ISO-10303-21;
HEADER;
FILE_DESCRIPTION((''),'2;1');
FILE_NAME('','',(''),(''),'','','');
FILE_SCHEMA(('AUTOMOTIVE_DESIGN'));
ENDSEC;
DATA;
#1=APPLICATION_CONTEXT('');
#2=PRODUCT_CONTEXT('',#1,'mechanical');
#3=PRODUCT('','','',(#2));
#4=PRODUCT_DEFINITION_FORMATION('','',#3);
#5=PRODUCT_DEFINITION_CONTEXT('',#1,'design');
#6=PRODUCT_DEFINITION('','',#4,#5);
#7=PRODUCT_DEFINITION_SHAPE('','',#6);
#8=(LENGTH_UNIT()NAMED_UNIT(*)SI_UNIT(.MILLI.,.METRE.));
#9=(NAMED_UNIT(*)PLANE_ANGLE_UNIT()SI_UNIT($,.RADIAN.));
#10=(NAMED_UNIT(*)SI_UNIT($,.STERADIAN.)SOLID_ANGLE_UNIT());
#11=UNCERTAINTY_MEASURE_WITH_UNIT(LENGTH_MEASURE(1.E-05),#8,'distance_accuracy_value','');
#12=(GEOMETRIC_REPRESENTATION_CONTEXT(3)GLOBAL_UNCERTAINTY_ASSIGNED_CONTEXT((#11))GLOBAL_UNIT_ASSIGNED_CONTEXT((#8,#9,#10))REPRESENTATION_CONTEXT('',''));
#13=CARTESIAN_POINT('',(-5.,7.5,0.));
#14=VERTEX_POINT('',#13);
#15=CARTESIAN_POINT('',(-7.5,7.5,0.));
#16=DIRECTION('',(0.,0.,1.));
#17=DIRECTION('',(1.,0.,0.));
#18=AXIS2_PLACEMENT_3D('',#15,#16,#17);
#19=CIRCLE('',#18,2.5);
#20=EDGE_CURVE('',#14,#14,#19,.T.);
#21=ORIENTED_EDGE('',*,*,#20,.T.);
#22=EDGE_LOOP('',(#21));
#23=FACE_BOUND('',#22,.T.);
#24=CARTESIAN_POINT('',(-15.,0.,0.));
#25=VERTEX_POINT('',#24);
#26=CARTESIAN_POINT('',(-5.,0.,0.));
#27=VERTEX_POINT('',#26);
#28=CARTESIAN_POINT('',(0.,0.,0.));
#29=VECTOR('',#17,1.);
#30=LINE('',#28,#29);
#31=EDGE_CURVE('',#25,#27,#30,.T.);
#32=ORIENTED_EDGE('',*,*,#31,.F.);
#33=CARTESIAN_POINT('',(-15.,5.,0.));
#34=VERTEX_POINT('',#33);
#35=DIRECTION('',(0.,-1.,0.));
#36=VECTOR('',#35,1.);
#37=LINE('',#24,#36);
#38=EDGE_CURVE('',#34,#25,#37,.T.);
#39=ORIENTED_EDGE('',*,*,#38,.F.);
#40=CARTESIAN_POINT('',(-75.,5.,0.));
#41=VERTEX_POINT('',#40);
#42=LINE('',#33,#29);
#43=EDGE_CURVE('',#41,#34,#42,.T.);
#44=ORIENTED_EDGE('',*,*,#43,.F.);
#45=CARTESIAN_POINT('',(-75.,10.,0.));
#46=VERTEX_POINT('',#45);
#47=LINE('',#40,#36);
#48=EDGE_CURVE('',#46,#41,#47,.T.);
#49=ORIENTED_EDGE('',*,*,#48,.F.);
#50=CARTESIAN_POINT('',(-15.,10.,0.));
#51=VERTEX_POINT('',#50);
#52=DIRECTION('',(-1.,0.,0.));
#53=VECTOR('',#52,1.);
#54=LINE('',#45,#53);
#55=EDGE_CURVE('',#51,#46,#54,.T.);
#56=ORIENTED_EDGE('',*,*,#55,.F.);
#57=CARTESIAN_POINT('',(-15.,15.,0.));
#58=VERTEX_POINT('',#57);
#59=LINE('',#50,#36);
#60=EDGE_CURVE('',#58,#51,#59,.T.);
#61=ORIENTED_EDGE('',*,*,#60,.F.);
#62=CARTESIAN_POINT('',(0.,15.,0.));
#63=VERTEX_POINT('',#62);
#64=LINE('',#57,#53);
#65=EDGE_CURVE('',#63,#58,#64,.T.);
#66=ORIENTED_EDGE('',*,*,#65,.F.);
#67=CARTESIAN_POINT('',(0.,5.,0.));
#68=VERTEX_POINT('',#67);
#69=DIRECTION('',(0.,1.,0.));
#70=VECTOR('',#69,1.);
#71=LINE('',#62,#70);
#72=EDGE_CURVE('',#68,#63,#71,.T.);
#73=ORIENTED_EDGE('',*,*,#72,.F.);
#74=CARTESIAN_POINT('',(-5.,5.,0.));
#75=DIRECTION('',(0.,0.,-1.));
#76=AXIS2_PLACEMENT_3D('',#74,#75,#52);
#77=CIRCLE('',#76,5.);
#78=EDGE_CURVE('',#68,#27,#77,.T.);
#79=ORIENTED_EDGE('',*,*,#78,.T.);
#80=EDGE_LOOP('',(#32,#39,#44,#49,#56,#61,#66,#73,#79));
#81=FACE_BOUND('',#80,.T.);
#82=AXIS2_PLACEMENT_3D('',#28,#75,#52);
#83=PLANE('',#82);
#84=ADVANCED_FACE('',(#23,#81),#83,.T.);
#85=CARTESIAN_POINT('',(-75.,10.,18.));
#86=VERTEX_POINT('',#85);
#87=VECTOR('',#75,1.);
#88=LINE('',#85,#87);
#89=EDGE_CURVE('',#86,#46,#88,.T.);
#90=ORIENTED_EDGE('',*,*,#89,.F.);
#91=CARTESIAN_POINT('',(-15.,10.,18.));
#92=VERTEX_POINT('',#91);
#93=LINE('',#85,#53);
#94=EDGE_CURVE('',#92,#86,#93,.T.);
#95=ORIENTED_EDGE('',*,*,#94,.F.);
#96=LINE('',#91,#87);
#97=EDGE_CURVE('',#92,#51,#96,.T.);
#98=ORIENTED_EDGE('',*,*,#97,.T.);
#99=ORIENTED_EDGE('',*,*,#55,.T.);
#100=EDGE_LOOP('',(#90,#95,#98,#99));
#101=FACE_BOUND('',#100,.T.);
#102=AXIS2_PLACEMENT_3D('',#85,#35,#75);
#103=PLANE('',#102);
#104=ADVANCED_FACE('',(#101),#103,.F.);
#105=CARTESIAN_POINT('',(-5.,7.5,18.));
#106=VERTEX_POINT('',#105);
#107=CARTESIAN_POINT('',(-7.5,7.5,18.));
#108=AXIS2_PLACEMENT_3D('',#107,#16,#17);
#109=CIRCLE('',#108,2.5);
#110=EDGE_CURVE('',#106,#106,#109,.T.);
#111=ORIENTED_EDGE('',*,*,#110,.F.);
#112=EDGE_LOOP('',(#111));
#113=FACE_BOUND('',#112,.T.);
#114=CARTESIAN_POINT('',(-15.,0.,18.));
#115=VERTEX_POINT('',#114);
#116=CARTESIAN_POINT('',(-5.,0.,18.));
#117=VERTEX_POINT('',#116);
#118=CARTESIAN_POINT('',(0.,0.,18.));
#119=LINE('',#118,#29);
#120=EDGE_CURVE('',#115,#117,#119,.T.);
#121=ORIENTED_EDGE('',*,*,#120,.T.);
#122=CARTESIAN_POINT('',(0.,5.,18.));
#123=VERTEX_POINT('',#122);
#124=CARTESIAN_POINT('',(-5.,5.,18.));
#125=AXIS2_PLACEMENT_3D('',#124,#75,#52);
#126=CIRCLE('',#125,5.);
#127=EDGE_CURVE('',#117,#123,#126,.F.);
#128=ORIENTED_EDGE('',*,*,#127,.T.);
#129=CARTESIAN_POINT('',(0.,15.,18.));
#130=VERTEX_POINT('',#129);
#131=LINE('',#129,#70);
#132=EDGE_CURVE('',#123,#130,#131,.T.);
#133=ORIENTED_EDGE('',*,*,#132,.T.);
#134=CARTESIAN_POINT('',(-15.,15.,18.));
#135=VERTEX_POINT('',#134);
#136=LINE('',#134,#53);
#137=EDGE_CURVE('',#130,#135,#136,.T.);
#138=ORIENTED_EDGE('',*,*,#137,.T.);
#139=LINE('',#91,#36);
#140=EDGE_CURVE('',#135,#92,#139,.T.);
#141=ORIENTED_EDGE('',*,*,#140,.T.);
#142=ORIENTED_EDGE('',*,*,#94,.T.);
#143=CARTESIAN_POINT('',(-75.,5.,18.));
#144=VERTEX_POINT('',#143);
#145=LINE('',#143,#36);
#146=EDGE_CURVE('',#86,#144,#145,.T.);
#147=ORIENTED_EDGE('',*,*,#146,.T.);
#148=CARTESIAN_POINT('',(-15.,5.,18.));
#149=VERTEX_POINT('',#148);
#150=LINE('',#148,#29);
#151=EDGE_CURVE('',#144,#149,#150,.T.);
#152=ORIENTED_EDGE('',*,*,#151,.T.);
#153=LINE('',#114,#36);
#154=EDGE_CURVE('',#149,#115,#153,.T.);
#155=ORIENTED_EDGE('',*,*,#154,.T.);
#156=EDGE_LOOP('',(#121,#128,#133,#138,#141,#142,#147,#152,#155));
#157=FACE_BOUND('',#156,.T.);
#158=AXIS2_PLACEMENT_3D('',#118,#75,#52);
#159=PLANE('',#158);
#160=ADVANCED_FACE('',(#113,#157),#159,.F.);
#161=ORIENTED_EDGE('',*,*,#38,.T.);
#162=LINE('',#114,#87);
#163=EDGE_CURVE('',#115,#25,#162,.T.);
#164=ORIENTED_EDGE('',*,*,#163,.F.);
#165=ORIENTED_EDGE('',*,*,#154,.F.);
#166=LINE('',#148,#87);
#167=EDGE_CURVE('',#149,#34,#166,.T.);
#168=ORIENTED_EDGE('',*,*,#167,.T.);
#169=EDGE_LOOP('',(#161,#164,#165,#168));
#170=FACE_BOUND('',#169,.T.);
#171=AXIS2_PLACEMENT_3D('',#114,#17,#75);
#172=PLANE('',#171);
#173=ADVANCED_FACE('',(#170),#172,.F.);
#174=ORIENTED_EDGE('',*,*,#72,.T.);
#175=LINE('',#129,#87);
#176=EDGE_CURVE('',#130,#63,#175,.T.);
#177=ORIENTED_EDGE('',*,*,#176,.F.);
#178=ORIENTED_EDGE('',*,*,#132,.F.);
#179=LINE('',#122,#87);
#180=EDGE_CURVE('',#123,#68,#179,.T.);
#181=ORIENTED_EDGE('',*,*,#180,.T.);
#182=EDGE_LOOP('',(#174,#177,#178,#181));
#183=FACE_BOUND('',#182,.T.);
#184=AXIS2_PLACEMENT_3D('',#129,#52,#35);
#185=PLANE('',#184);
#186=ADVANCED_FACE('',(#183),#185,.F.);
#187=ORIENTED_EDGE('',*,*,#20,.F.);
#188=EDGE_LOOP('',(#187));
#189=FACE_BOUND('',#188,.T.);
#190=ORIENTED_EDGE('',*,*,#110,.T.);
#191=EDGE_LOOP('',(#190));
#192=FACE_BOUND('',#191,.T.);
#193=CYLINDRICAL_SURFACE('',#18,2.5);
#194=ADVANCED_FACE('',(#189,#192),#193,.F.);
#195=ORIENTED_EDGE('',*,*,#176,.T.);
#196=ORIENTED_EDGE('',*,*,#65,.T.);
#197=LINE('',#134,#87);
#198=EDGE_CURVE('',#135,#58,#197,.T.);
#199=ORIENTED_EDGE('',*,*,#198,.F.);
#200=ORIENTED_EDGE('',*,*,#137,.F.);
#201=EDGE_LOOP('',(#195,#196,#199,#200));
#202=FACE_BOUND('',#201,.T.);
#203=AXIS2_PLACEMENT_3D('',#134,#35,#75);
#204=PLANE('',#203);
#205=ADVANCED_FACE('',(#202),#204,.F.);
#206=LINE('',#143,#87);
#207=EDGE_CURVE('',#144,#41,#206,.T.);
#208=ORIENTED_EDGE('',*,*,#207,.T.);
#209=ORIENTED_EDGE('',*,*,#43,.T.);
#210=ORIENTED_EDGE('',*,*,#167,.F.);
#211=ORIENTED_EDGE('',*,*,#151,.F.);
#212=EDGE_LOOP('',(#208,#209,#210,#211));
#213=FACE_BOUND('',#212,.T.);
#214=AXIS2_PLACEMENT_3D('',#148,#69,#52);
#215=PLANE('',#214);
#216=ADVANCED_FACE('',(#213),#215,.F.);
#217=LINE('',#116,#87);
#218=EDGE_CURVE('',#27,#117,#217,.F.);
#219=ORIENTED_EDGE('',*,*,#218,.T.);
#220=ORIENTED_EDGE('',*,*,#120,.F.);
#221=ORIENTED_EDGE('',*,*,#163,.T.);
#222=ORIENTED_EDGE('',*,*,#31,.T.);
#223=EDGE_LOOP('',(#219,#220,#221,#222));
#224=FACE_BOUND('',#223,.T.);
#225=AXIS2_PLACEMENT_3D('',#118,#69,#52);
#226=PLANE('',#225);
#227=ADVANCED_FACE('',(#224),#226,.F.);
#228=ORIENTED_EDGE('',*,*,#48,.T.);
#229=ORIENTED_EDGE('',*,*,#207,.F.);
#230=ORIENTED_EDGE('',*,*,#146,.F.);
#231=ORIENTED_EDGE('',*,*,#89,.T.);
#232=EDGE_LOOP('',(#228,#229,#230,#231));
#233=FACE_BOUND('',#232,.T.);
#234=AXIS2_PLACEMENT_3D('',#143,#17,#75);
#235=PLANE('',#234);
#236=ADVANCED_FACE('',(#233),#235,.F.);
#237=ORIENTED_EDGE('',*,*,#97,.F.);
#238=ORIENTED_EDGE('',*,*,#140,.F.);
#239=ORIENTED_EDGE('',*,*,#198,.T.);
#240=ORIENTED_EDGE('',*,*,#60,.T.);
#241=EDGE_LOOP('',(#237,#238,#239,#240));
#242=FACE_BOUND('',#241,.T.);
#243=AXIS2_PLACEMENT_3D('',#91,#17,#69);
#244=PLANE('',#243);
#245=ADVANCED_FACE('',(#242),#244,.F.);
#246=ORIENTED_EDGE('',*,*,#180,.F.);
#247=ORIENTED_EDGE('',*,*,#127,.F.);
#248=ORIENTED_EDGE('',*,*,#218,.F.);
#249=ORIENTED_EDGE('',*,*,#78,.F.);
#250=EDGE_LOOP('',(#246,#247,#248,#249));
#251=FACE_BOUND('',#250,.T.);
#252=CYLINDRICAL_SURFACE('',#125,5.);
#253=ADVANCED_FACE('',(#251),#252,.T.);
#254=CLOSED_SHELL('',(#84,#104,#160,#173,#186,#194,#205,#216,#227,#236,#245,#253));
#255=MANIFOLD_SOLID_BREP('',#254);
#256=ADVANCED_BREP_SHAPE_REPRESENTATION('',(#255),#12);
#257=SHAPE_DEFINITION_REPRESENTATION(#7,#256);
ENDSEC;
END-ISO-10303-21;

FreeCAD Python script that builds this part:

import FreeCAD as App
import Part
import Sketcher
from FreeCAD import Vector


def edges_at(feature, points):
    """Names of the edges that pass closest to the given points."""
    edges = feature.Shape.Edges
    near = lambda p: min(range(len(edges)), key=lambda i: edges[i].distToShape(Part.Vertex(*p))[0])
    return sorted({f"Edge{near(p) + 1}" for p in points})


def add_polygon(sketch, points):
    """Adds a closed chain of lines whose ends are joined by coincident constraints."""
    first, n = sketch.GeometryCount, len(points)
    for a, b in zip(points, points[1:] + points[:1]):
        sketch.addGeometry(Part.LineSegment(App.Vector(*a, 0), App.Vector(*b, 0)), False)
    for i in range(n):
        sketch.addConstraint(Sketcher.Constraint("Coincident", first + i, 2, first + (i + 1) % n, 1))

doc = App.newDocument("Part")
params = doc.addObject("Spreadsheet::Sheet", "Params")
for row, (alias, value) in enumerate([
    ("sketch1_width", "15 mm"),
    ("sketch1_width2", "60 mm"),
    ("pad1_length", "18 mm"),
    ("sketch2_diameter", "5 mm"),
    ("fillet_radius", "5 mm"),
], start=1):
    params.set(f"A{row}", alias)
    params.set(f"B{row}", "=" + value)
    params.setAlias(f"B{row}", alias)

body = doc.addObject("PartDesign::Body", "Body")

sketch1 = body.newObject("Sketcher::SketchObject", "Sketch")
sketch1.AttachmentSupport = (doc.getObject("XY_Plane"), [""])
sketch1.MapMode = "FlatFace"
add_polygon(sketch1, [(-15, 0), (0, 0), (0, 15), (-15, 15), (-15, 10), (-75, 10), (-75, 5), (-15, 5)])
sketch1.addConstraint(Sketcher.Constraint("Horizontal", 0))
sketch1.addConstraint(Sketcher.Constraint("Vertical", 1))
sketch1.addConstraint(Sketcher.Constraint("Horizontal", 2))
sketch1.addConstraint(Sketcher.Constraint("Vertical", 3))
sketch1.addConstraint(Sketcher.Constraint("Horizontal", 4))
sketch1.addConstraint(Sketcher.Constraint("Vertical", 5))
sketch1.addConstraint(Sketcher.Constraint("Horizontal", 6))
sketch1.addConstraint(Sketcher.Constraint("Vertical", 7))
sketch1.addConstraint(Sketcher.Constraint("Coincident", 0, 2, -1, 1))
sketch1.addConstraint(Sketcher.Constraint("Vertical", 3, 2, 6, 2))
sketch1.addConstraint(Sketcher.Constraint("Equal", 2, 1))
sketch1.addConstraint(Sketcher.Constraint("Equal", 3, 5))
sketch1.addConstraint(Sketcher.Constraint("Equal", 5, 7))
sketch1.addConstraint(Sketcher.Constraint("DistanceX", 0, 1, 0, 2, 15.0))
sketch1.addConstraint(Sketcher.Constraint("DistanceX", 4, 2, 4, 1, 60.0))
sketch1.setExpression("Constraints[21]", "Params.sketch1_width")
sketch1.setExpression("Constraints[22]", "Params.sketch1_width2")
pad1 = body.newObject("PartDesign::Pad", "Pad")
pad1.Profile = sketch1
pad1.setExpression("Length", "Params.pad1_length")

sketch2 = body.newObject("Sketcher::SketchObject", "Sketch001")
sketch2.AttachmentSupport = (doc.getObject("XY_Plane"), [""])
sketch2.MapMode = "FlatFace"
sketch2.AttachmentOffset = App.Placement(Vector(0, 0, 18), App.Rotation())
sketch2.addGeometry(Part.Circle(Vector(-7.5, 7.5, 0), Vector(0, 0, 1), 2.5), False)
sketch2.addConstraint(Sketcher.Constraint("Diameter", 0, 5.0))
sketch2.addConstraint(Sketcher.Constraint("DistanceX", 0, 3, -1, 1, 7.5))
sketch2.addConstraint(Sketcher.Constraint("DistanceY", -1, 1, 0, 3, 7.5))
sketch2.setExpression("Constraints[0]", "Params.sketch2_diameter")
pocket1 = body.newObject("PartDesign::Pocket", "Pocket")
pocket1.Profile = sketch2
pocket1.Type = "ThroughAll"
doc.recompute()

fillet = body.newObject("PartDesign::Fillet", "Fillet")
fillet.Base = (pocket1, edges_at(pocket1, [(0, 0, 9)]))
fillet.setExpression("Radius", "Params.fillet_radius")

doc.recompute()
